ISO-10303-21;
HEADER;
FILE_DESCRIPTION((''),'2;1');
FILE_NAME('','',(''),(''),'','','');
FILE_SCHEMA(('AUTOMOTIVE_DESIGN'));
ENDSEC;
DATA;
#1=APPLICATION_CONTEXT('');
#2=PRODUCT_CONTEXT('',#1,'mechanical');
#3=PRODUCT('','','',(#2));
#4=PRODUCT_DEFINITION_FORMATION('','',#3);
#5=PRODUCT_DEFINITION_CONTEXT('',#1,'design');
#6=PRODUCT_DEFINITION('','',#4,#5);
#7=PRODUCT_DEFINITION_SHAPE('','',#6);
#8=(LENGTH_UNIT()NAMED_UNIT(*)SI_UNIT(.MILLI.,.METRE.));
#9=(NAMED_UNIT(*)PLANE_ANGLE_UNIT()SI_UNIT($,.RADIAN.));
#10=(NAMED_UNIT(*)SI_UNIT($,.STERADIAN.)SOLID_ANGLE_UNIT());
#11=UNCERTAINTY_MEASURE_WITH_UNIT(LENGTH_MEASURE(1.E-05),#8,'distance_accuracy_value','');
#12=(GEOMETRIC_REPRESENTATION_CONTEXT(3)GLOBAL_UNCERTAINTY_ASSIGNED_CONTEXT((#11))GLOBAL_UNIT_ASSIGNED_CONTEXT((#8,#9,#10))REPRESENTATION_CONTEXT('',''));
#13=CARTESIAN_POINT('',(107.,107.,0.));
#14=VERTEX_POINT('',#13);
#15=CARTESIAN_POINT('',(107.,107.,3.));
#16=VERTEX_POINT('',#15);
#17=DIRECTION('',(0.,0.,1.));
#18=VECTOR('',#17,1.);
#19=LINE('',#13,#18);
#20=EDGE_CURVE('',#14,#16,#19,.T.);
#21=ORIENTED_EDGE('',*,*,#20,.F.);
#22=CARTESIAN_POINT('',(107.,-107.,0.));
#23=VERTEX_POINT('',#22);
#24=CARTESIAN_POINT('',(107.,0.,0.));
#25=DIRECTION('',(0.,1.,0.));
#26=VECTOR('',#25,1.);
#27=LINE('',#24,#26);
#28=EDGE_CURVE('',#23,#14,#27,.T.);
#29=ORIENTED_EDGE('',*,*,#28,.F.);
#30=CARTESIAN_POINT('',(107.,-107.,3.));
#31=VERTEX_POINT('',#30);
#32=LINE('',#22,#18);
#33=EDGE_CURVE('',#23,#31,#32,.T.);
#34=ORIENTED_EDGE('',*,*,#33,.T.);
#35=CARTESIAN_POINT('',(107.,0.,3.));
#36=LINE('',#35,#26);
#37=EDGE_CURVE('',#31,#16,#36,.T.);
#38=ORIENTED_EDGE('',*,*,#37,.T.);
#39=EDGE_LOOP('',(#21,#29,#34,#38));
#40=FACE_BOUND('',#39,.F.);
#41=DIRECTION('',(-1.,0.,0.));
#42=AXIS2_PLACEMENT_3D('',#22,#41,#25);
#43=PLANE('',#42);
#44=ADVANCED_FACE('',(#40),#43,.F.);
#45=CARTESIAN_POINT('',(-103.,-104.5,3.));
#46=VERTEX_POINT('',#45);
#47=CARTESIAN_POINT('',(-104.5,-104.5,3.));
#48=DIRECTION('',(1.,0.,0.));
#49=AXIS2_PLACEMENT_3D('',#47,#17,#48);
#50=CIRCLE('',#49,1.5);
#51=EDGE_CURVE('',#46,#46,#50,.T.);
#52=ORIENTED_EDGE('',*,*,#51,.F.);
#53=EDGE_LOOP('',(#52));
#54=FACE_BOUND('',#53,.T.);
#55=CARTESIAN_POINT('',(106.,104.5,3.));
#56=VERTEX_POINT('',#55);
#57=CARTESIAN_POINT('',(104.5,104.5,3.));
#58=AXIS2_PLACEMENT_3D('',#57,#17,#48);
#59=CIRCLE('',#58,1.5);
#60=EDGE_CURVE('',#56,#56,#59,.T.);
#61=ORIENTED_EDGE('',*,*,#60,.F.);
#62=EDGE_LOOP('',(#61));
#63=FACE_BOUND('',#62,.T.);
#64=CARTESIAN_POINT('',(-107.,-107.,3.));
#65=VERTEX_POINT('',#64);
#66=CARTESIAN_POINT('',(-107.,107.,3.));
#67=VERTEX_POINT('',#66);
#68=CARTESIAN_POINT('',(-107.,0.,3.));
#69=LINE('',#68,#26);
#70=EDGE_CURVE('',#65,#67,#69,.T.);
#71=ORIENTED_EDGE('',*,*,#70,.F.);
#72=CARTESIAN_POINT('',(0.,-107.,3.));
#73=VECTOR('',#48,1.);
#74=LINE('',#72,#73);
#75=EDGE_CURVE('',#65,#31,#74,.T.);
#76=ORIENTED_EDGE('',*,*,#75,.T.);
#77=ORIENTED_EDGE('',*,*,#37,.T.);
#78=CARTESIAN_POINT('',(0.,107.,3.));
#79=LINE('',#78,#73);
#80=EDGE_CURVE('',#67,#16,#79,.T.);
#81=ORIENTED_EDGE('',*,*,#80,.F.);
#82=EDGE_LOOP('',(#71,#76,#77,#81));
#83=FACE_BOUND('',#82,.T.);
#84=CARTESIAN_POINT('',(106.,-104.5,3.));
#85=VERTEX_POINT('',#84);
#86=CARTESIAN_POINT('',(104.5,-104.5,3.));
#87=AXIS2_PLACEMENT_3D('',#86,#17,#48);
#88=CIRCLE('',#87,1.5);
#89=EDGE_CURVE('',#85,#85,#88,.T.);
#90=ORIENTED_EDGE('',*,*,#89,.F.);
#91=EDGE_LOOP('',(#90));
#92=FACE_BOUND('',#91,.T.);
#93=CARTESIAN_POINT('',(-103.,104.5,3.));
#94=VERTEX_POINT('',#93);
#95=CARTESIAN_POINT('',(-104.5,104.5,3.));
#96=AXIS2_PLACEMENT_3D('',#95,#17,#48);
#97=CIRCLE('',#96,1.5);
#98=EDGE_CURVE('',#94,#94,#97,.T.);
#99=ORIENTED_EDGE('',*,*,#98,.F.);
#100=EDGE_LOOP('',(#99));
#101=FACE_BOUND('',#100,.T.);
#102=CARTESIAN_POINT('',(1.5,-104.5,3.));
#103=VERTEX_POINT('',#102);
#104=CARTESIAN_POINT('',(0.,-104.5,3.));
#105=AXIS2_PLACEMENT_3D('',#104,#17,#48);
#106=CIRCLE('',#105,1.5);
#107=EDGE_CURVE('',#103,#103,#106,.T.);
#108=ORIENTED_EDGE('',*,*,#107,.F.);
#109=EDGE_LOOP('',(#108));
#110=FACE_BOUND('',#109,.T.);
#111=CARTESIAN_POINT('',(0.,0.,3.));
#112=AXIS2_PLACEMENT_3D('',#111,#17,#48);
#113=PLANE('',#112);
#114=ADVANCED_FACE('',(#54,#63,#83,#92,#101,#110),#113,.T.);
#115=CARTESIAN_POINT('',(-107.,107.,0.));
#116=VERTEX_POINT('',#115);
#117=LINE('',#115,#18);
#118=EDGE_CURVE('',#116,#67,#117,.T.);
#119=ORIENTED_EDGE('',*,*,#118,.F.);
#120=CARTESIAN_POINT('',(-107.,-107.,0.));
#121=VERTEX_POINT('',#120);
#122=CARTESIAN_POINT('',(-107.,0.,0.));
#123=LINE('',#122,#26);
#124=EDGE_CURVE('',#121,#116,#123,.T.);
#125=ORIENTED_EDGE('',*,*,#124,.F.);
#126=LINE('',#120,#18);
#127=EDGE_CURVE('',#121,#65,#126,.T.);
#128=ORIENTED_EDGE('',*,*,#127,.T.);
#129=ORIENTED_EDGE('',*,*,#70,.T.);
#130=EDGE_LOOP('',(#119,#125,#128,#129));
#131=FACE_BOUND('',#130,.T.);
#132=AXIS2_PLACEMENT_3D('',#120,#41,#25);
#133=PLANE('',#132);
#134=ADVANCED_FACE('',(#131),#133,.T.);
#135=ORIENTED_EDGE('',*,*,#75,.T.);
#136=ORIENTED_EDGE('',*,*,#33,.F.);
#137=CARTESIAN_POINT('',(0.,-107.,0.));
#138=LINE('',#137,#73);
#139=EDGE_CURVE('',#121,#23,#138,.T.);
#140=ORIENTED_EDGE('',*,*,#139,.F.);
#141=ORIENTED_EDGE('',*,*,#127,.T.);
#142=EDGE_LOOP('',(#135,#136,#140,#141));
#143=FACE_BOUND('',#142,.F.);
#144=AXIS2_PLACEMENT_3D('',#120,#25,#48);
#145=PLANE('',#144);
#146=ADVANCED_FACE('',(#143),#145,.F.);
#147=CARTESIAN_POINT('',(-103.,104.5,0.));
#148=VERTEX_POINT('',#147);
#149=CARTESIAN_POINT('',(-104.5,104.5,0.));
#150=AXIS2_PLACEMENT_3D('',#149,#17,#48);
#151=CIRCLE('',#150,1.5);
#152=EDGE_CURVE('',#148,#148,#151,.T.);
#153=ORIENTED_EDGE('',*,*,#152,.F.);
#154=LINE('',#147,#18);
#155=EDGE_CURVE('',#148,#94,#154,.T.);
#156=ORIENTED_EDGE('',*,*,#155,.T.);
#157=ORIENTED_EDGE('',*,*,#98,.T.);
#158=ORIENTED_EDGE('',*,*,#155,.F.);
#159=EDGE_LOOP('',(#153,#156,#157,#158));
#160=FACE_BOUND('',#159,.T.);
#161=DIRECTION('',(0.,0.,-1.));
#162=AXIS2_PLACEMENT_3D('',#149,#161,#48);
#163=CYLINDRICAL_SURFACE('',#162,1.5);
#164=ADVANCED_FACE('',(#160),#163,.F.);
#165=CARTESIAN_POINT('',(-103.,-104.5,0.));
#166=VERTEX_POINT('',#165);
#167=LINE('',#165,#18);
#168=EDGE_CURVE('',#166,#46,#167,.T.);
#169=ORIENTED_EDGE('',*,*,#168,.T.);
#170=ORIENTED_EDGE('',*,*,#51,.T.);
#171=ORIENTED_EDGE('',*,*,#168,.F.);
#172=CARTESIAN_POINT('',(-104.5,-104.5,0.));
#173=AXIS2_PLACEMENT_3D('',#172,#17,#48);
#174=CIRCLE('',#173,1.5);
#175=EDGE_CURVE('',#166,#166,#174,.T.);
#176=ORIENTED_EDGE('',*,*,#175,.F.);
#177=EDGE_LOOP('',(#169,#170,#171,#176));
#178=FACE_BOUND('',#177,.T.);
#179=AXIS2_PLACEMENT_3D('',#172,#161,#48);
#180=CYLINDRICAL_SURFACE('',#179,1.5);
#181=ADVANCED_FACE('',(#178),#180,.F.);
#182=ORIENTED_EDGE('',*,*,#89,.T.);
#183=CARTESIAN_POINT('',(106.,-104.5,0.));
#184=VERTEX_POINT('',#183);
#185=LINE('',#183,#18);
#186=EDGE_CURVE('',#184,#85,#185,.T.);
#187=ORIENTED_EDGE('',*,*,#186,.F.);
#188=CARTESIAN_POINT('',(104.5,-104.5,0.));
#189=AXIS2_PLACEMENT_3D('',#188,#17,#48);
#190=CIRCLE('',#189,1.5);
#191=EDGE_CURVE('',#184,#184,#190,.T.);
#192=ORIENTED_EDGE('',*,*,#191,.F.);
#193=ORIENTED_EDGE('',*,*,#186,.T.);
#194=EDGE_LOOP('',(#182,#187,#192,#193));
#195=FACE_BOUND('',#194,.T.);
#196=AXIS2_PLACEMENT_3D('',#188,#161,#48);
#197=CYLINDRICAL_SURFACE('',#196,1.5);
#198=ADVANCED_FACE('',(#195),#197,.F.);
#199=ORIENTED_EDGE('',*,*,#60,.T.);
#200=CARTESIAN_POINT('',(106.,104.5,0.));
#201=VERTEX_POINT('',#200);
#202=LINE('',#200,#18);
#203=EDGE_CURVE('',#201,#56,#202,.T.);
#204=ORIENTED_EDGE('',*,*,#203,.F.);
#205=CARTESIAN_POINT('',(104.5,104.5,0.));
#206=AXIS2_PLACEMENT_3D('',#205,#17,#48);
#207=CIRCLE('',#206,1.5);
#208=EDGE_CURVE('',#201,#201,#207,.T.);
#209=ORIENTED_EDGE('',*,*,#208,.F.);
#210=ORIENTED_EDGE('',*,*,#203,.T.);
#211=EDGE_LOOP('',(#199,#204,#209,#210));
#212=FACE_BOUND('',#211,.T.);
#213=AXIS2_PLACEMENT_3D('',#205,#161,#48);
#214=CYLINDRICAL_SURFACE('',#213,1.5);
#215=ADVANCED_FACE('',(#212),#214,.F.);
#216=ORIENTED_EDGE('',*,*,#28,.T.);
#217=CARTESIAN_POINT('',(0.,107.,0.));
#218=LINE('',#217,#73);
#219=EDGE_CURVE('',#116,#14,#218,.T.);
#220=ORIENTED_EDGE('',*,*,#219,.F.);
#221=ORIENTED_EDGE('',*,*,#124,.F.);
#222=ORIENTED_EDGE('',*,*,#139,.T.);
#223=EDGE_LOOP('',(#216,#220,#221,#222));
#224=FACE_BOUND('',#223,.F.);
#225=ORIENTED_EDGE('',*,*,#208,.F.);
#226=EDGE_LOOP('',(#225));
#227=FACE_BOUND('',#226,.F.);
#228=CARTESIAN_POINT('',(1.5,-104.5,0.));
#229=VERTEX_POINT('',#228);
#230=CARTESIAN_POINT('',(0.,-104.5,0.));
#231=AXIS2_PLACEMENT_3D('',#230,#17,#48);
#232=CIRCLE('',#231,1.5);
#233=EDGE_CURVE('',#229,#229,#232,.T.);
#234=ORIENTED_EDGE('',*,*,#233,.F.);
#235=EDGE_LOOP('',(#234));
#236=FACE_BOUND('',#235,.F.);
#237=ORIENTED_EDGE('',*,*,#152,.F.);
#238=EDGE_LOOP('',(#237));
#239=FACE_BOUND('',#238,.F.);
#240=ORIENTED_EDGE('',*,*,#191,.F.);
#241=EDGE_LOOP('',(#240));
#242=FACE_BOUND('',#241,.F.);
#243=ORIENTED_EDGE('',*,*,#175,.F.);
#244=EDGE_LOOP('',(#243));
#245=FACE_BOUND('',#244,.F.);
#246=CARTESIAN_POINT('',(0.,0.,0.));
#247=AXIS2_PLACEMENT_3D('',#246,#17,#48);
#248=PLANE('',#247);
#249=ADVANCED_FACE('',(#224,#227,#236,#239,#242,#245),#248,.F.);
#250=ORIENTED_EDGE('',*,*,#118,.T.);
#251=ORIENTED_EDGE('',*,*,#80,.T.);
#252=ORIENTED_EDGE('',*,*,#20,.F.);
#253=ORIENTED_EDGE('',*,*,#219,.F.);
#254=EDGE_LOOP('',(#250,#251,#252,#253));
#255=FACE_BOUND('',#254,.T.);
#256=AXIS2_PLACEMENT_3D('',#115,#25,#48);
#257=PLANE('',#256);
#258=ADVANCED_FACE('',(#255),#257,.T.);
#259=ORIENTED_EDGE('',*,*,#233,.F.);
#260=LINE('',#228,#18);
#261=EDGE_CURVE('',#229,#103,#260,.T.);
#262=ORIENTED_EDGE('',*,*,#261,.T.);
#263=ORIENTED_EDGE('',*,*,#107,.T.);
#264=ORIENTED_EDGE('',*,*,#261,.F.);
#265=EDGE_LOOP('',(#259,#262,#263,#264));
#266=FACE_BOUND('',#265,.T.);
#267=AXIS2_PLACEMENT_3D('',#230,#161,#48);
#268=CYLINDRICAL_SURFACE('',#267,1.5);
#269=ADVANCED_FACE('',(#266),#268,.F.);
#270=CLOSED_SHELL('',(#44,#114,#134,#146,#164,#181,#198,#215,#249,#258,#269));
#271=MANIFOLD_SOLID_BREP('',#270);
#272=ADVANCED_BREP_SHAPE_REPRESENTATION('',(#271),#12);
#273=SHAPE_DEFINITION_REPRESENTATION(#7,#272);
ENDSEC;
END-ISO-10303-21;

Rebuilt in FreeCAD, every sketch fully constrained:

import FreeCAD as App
import Part
import Sketcher

V = App.Vector


def add_polygon(sketch, points):
    """Adds a closed chain of lines whose ends are joined by coincident constraints."""
    first, n = sketch.GeometryCount, len(points)
    for a, b in zip(points, points[1:] + points[:1]):
        sketch.addGeometry(Part.LineSegment(App.Vector(*a, 0), App.Vector(*b, 0)), False)
    for i in range(n):
        sketch.addConstraint(Sketcher.Constraint("Coincident", first + i, 2, first + (i + 1) % n, 1))

doc = App.newDocument("Part")
body = doc.addObject("PartDesign::Body", "Body")

# Sketch on XY plane
sketch1 = body.newObject("Sketcher::SketchObject", "Sketch")
sketch1.AttachmentSupport = (doc.getObject("XY_Plane"), [""])
sketch1.MapMode = "FlatFace"
add_polygon(sketch1, [(-107, 107), (-107, -107), (107, -107), (107, 107)])  # lines 0-3
sketch1.addGeometry(Part.Circle(V(-104.5, -104.5, 0), V(0, 0, 1), 1.5), False)  # 4
sketch1.addGeometry(Part.Circle(V(0, -104.5, 0), V(0, 0, 1), 1.5), False)  # 5
sketch1.addGeometry(Part.Circle(V(104.5, -104.5, 0), V(0, 0, 1), 1.5), False)  # 6
sketch1.addGeometry(Part.Circle(V(-104.5, 104.5, 0), V(0, 0, 1), 1.5), False)  # 7
sketch1.addGeometry(Part.Circle(V(104.5, 104.5, 0), V(0, 0, 1), 1.5), False)  # 8
sketch1.addConstraint(Sketcher.Constraint("Vertical", 0))
sketch1.addConstraint(Sketcher.Constraint("Horizontal", 1))
sketch1.addConstraint(Sketcher.Constraint("Vertical", 2))
sketch1.addConstraint(Sketcher.Constraint("Horizontal", 3))
sketch1.addConstraint(Sketcher.Constraint("Equal", 4, 5))
sketch1.addConstraint(Sketcher.Constraint("Equal", 5, 6))
sketch1.addConstraint(Sketcher.Constraint("Equal", 6, 7))
sketch1.addConstraint(Sketcher.Constraint("Equal", 7, 8))
sketch1.addConstraint(Sketcher.Constraint("Symmetric", 6, 3, 7, 3, -1, 1))
sketch1.addConstraint(Sketcher.Constraint("Symmetric", 4, 3, 8, 3, -1, 1))
sketch1.addConstraint(Sketcher.Constraint("Symmetric", 0, 2, 2, 2, -1, 1))
sketch1.addConstraint(Sketcher.Constraint("Symmetric", 4, 3, 6, 3, -2))
sketch1.addConstraint(Sketcher.Constraint("PointOnObject", 5, 3, -2))
sketch1.addConstraint(Sketcher.Constraint("Horizontal", 4, 3, 5, 3))
sketch1.addConstraint(Sketcher.Constraint("Equal", 3, 0))
sketch1.addConstraint(Sketcher.Constraint("Diameter", 4, 3.0))
sketch1.addConstraint(Sketcher.Constraint("DistanceX", 1, 1, 1, 2, 214.0))
sketch1.addConstraint(Sketcher.Constraint("DistanceX", 4, 3, 6, 3, 209.0))
sketch1.addConstraint(Sketcher.Constraint("DistanceY", 4, 3, 7, 3, 209.0))
pad1 = body.newObject("PartDesign::Pad", "Pad")
pad1.Profile = sketch1
pad1.Length = 3

doc.recompute()
